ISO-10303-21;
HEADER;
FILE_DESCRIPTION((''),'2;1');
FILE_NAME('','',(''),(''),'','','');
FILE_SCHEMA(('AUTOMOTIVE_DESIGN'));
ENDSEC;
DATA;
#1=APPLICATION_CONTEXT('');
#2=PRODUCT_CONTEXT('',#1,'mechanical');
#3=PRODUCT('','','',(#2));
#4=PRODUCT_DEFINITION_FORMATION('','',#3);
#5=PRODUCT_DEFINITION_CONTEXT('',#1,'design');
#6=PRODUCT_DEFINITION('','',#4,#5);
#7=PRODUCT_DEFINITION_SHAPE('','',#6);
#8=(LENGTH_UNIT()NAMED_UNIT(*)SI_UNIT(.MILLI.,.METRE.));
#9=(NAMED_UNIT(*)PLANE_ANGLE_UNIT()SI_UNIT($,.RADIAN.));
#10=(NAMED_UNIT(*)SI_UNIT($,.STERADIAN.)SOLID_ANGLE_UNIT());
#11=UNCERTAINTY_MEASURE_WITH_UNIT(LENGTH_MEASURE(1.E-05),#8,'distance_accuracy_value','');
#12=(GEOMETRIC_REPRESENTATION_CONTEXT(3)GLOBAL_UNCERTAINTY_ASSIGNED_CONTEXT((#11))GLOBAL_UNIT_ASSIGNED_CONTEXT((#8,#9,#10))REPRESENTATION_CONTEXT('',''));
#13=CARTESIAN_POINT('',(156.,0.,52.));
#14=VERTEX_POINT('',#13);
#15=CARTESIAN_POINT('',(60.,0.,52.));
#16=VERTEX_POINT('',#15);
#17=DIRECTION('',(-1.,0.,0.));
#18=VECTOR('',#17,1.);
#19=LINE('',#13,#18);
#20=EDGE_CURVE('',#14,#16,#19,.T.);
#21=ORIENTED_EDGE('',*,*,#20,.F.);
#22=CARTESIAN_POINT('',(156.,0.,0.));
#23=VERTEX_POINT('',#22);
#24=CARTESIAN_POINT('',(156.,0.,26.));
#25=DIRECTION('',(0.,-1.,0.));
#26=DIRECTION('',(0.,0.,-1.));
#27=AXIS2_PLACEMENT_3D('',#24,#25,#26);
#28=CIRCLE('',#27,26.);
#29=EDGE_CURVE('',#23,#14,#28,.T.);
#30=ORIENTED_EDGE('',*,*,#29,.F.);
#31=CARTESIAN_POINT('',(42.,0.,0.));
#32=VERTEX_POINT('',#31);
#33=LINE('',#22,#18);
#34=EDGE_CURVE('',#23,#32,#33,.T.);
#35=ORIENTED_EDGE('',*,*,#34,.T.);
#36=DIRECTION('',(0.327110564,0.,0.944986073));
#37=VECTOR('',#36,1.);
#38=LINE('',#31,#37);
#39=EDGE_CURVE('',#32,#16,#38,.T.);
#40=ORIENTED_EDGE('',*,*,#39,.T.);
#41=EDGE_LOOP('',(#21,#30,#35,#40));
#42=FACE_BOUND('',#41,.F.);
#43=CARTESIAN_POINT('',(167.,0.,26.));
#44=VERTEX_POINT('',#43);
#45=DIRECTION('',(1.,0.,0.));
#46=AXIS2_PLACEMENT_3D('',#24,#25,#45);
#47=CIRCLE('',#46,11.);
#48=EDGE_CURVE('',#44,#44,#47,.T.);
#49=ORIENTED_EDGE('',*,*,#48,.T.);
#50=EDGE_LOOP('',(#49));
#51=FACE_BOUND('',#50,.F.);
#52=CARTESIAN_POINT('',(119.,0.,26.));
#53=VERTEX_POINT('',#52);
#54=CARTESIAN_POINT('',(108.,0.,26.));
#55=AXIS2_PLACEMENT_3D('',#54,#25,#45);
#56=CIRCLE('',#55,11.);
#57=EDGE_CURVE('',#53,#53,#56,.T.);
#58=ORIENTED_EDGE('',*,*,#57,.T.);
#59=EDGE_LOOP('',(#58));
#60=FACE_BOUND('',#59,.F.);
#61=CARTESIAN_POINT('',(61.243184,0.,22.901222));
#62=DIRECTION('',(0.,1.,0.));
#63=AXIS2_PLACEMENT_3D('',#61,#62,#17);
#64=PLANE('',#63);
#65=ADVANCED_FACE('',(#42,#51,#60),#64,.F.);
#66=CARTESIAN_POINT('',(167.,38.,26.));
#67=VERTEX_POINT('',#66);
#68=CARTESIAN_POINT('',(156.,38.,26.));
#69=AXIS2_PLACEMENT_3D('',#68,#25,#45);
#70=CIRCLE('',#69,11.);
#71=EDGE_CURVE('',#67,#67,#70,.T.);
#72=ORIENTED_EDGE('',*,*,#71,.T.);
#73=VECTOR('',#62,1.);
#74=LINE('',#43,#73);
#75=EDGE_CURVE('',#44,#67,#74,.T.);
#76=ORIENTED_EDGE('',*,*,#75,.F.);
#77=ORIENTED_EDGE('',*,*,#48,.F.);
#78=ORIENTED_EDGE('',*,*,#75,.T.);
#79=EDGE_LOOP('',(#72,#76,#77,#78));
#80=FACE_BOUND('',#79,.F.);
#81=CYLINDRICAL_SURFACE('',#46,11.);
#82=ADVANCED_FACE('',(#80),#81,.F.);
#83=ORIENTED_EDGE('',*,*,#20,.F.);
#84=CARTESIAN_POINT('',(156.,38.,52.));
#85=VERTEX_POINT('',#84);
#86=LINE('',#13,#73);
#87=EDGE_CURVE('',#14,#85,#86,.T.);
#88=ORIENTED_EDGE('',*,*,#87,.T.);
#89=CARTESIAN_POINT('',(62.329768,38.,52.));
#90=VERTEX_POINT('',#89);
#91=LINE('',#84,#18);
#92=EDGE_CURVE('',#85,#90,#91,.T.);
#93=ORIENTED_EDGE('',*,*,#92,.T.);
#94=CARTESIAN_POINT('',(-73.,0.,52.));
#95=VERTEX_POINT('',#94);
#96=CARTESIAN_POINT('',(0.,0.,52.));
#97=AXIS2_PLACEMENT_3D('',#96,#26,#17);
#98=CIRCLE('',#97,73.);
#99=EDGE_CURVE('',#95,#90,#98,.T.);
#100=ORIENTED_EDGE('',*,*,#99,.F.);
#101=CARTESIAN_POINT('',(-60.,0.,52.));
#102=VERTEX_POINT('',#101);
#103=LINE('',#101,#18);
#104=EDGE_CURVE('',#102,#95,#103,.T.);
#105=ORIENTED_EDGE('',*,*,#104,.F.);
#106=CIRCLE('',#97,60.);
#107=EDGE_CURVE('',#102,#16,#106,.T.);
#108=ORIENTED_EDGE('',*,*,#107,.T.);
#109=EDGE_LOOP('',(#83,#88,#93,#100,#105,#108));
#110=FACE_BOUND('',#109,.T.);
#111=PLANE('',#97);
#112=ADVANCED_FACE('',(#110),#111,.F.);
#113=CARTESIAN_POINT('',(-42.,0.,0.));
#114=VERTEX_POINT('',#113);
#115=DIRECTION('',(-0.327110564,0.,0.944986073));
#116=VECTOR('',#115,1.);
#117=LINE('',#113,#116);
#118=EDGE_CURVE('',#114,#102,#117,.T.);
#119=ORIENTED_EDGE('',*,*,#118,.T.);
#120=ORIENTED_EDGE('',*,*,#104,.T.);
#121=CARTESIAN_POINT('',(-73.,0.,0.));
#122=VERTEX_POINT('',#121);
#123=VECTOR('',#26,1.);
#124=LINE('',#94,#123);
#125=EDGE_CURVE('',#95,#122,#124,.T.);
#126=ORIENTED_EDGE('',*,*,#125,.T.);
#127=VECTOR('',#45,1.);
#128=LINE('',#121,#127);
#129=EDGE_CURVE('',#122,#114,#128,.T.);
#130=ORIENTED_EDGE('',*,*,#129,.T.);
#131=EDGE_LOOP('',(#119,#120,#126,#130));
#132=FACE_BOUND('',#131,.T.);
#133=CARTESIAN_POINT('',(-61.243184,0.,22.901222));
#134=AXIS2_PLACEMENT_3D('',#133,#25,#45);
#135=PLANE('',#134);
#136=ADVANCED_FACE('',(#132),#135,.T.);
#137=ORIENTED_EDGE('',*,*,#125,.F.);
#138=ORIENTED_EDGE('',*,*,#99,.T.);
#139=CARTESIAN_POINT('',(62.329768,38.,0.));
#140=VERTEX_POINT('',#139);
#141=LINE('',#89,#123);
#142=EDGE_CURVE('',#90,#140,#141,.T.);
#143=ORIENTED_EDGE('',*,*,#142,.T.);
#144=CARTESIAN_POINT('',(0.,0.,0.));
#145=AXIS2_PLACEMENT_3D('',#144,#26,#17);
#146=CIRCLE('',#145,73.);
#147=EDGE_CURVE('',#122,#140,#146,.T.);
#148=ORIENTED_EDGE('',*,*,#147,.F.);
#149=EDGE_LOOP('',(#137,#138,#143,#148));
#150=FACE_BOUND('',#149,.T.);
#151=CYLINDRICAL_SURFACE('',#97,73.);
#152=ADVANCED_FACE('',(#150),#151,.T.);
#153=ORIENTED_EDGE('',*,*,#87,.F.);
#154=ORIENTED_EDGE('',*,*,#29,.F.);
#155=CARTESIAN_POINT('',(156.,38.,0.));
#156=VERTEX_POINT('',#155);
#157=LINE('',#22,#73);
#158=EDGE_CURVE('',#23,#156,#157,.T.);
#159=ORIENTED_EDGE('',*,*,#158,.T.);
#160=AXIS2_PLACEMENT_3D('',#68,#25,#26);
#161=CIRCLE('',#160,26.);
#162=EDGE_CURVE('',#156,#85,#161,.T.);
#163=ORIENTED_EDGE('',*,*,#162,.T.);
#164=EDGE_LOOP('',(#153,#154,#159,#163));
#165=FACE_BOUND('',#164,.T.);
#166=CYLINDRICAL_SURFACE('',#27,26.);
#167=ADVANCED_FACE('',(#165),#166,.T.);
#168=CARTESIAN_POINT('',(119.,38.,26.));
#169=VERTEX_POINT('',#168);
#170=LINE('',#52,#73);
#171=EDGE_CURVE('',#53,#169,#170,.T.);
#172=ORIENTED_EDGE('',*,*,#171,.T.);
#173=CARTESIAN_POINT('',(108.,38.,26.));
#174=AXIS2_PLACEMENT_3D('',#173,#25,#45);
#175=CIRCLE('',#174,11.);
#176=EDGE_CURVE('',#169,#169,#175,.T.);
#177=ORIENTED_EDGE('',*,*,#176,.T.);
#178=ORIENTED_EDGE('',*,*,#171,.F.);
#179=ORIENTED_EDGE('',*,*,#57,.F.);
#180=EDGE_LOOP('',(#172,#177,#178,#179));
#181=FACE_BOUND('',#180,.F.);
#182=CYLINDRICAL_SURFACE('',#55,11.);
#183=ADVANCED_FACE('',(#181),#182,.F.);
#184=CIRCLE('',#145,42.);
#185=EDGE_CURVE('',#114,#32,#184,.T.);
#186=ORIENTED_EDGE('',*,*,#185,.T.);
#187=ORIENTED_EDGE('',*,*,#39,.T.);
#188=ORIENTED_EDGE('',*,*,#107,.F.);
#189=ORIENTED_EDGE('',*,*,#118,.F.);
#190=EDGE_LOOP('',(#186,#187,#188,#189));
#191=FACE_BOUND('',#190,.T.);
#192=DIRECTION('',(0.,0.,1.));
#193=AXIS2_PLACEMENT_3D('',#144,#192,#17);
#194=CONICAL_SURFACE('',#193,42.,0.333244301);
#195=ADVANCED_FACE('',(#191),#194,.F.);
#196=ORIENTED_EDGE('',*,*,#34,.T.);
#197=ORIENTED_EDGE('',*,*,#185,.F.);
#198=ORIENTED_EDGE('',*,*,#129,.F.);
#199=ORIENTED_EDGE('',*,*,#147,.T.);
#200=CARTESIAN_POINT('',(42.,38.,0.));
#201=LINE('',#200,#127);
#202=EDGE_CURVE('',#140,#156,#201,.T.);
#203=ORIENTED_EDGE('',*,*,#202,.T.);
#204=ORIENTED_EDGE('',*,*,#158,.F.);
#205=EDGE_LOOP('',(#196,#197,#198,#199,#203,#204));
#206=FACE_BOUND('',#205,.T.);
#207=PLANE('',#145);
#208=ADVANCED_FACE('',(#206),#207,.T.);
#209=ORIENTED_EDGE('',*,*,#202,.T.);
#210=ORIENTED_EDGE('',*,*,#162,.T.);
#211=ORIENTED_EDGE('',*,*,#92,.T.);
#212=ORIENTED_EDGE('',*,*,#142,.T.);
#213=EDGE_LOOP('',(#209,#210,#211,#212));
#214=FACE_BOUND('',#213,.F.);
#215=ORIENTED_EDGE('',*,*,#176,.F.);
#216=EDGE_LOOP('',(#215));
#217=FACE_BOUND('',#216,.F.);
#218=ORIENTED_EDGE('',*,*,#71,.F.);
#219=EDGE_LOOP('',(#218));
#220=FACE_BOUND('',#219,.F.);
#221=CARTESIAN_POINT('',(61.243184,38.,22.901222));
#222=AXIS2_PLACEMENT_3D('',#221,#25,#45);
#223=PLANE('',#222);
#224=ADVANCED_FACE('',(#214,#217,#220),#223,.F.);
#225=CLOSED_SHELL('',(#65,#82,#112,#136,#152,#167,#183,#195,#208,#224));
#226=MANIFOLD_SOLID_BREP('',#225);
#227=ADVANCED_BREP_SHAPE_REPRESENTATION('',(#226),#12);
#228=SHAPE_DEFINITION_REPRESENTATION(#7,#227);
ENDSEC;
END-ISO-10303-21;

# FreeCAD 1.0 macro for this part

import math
import FreeCAD as App
import Part
import Sketcher

V = App.Vector

doc = App.newDocument("Part")
body = doc.addObject("PartDesign::Body", "Body")

# Sketch on XZ plane
sketch1 = body.newObject("Sketcher::SketchObject", "Sketch")
sketch1.AttachmentSupport = (doc.getObject("XZ_Plane"), [""])
sketch1.MapMode = "FlatFace"
sketch1.addGeometry(Part.LineSegment(V(-73, 52, 0), V(-73, 0, 0)), False)
sketch1.addGeometry(Part.LineSegment(V(-73, 0, 0), V(-42, 0, 0)), False)
sketch1.addGeometry(Part.LineSegment(V(-42, 0, 0), V(-60, 52, 0)), False)
sketch1.addGeometry(Part.LineSegment(V(-60, 52, 0), V(-73, 52, 0)), False)
sketch1.addConstraint(Sketcher.Constraint("Coincident", 0, 2, 1, 1))
sketch1.addConstraint(Sketcher.Constraint("Coincident", 1, 2, 2, 1))
sketch1.addConstraint(Sketcher.Constraint("Coincident", 2, 2, 3, 1))
sketch1.addConstraint(Sketcher.Constraint("Coincident", 3, 2, 0, 1))
sketch1.addConstraint(Sketcher.Constraint("Vertical", 0))
sketch1.addConstraint(Sketcher.Constraint("Horizontal", 1))
sketch1.addConstraint(Sketcher.Constraint("Horizontal", 3))
sketch1.addConstraint(Sketcher.Constraint("PointOnObject", 0, 2, -1))
sketch1.addConstraint(Sketcher.Constraint("DistanceX", 1, 1, 1, 2, 31.0))
sketch1.addConstraint(Sketcher.Constraint("DistanceX", 3, 2, 3, 1, 13.0))
sketch1.addConstraint(Sketcher.Constraint("DistanceY", 0, 2, 0, 1, 52.0))
sketch1.addConstraint(Sketcher.Constraint("DistanceX", 0, 2, -1, 1, 73.0))
revolution = body.newObject("PartDesign::Revolution", "Revolution")
revolution.Profile = sketch1
revolution.ReferenceAxis = (sketch1, ["V_Axis"])
revolution.Angle = 180
revolution.Reversed = True

# Sketch on XZ plane
sketch2 = body.newObject("Sketcher::SketchObject", "Sketch001")
sketch2.AttachmentSupport = (doc.getObject("XZ_Plane"), [""])
sketch2.MapMode = "FlatFace"
sketch2.addGeometry(Part.LineSegment(V(60, 52, 0), V(42, 0, 0)), False)
sketch2.addGeometry(Part.LineSegment(V(42, 0, 0), V(156, 0, 0)), False)
sketch2.addGeometry(Part.ArcOfCircle(Part.Circle(V(156, 26, 0), V(0, 0, 1), 26), math.radians(-90), math.radians(90)), False)
sketch2.addGeometry(Part.LineSegment(V(156, 52, 0), V(60, 52, 0)), False)
sketch2.addGeometry(Part.Circle(V(108, 26, 0), V(0, 0, 1), 11), False)
sketch2.addGeometry(Part.Circle(V(156, 26, 0), V(0, 0, 1), 11), False)
sketch2.addConstraint(Sketcher.Constraint("Coincident", 0, 2, 1, 1))
sketch2.addConstraint(Sketcher.Constraint("Tangent", 1, 2, 2, 1))
sketch2.addConstraint(Sketcher.Constraint("Tangent", 2, 2, 3, 1))
sketch2.addConstraint(Sketcher.Constraint("Coincident", 3, 2, 0, 1))
sketch2.addConstraint(Sketcher.Constraint("Horizontal", 1))
sketch2.addConstraint(Sketcher.Constraint("Horizontal", 3))
sketch2.addConstraint(Sketcher.Constraint("Coincident", 5, 3, 2, 3))
sketch2.addConstraint(Sketcher.Constraint("Equal", 4, 5))
sketch2.addConstraint(Sketcher.Constraint("PointOnObject", 0, 2, -1))
sketch2.addConstraint(Sketcher.Constraint("Horizontal", 2, 3, 4, 3))
sketch2.addConstraint(Sketcher.Constraint("Diameter", 4, 22.0))
sketch2.addConstraint(Sketcher.Constraint("Radius", 2, 26.0))
sketch2.addConstraint(Sketcher.Constraint("DistanceX", 1, 1, 1, 2, 114.0))
sketch2.addConstraint(Sketcher.Constraint("DistanceX", 3, 2, 3, 1, 96.0))
sketch2.addConstraint(Sketcher.Constraint("DistanceX", -1, 1, 2, 3, 156.0))
sketch2.addConstraint(Sketcher.Constraint("DistanceX", -1, 1, 4, 3, 108.0))
pad1 = body.newObject("PartDesign::Pad", "Pad")
pad1.Profile = sketch2
pad1.Length = 38
pad1.Reversed = True

doc.recompute()
